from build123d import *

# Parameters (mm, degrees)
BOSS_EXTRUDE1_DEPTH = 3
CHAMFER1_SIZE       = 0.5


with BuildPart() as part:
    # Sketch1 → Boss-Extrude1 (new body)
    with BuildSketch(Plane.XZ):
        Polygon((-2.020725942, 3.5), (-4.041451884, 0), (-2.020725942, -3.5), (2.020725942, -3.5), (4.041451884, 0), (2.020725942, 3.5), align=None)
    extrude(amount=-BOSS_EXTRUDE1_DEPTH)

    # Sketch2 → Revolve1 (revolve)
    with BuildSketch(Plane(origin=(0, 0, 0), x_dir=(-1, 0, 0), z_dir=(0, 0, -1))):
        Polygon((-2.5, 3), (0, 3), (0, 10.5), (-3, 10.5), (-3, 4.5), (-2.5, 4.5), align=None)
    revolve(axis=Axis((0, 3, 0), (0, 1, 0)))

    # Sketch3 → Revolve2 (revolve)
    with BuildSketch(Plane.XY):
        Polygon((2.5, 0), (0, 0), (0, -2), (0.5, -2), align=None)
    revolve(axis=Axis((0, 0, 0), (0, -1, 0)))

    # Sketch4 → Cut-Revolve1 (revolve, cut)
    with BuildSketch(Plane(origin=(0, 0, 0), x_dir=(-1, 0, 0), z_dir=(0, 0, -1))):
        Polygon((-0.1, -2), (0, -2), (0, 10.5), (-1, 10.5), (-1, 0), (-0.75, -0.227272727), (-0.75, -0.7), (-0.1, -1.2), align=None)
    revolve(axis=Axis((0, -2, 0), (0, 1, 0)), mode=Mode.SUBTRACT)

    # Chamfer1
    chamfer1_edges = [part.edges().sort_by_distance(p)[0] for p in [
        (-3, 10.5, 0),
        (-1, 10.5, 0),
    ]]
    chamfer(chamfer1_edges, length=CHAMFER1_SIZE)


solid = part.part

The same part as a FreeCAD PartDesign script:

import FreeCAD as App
import Part
import Sketcher

V = App.Vector
Q = App.Units.Quantity


def edges_at(feature, points):
    """Names of the edges that pass closest to the given points."""
    edges = feature.Shape.Edges
    near = lambda p: min(range(len(edges)), key=lambda i: edges[i].distToShape(Part.Vertex(*p))[0])
    return sorted({f"Edge{near(p) + 1}" for p in points})


def add_polygon(sketch, points):
    """Adds a closed chain of lines whose ends are joined by coincident constraints."""
    first, n = sketch.GeometryCount, len(points)
    for a, b in zip(points, points[1:] + points[:1]):
        sketch.addGeometry(Part.LineSegment(App.Vector(*a, 0), App.Vector(*b, 0)), False)
    for i in range(n):
        sketch.addConstraint(Sketcher.Constraint("Coincident", first + i, 2, first + (i + 1) % n, 1))

doc = App.newDocument("Part")
body = doc.addObject("PartDesign::Body", "Body")

# Sketch on XZ plane
sketch1 = doc.addObject("Sketcher::SketchObject", "Sketch")
body.addObject(sketch1)
sketch1.AttachmentSupport = (doc.XZ_Plane, [""])
sketch1.MapMode = "FlatFace"
add_polygon(sketch1, [(-2, 3.5), (-4, 0), (-2, -3.5), (2, -3.5), (4, 0), (2, 3.5)])  # lines 0-5
sketch1.addConstraint([
    Sketcher.Constraint("Horizontal", 2),
    Sketcher.Constraint("Horizontal", 5),
    Sketcher.Constraint("Symmetric", 0, 2, 3, 2, -1, 1),
    Sketcher.Constraint("Symmetric", 1, 2, 4, 2, -1, 1),
    Sketcher.Constraint("PointOnObject", 0, 2, -1),
    Sketcher.Constraint("Parallel", 0, 3),
    Sketcher.Constraint("Vertical", 2, 2, 4, 2),
    Sketcher.Constraint("Angle", 0, Q("-120 deg")),
    Sketcher.Constraint("DistanceY", 2, 2, 4, 2, Q("7 mm")),
    Sketcher.Constraint("DistanceX", 2, 1, 2, 2, Q("4.041452 mm")),
])
pad1 = doc.addObject("PartDesign::Pad", "Pad")
body.addObject(pad1)
pad1.Profile = sketch1
pad1.Length = 3
pad1.Reversed = True

# Sketch on XY plane
sketch2 = doc.addObject("Sketcher::SketchObject", "Sketch001")
body.addObject(sketch2)
sketch2.AttachmentSupport = (doc.XY_Plane, [""])
sketch2.MapMode = "FlatFace"
add_polygon(sketch2, [(2.5, 3), (0, 3), (0, 10.5), (3, 10.5), (3, 4.5), (2.5, 4.5)])  # lines 0-5
sketch2.addConstraint([
    Sketcher.Constraint("Horizontal", 0),
    Sketcher.Constraint("Vertical", 1),
    Sketcher.Constraint("Horizontal", 2),
    Sketcher.Constraint("Vertical", 3),
    Sketcher.Constraint("Horizontal", 4),
    Sketcher.Constraint("Vertical", 5),
    Sketcher.Constraint("PointOnObject", 0, 2, -2),
    Sketcher.Constraint("DistanceX", 2, 1, 2, 2, Q("3 mm")),
    Sketcher.Constraint("DistanceY", 3, 2, 3, 1, Q("6 mm")),
    Sketcher.Constraint("DistanceX", 0, 2, 0, 1, Q("2.5 mm")),
    Sketcher.Constraint("DistanceY", 1, 1, 1, 2, Q("7.5 mm")),
    Sketcher.Constraint("DistanceY", -1, 1, 0, 2, Q("3 mm")),
])
revolution = doc.addObject("PartDesign::Revolution", "Revolution")
body.addObject(revolution)
revolution.Profile = sketch2
revolution.ReferenceAxis = (sketch2, ["V_Axis"])
revolution.Angle = 360

# Sketch on XY plane
sketch3 = doc.addObject("Sketcher::SketchObject", "Sketch002")
body.addObject(sketch3)
sketch3.AttachmentSupport = (doc.XY_Plane, [""])
sketch3.MapMode = "FlatFace"
add_polygon(sketch3, [(2.5, 0), (0, 0), (0, -2), (0.5, -2)])  # lines 0-3
sketch3.addConstraint([
    Sketcher.Constraint("Horizontal", 0),
    Sketcher.Constraint("Vertical", 1),
    Sketcher.Constraint("Horizontal", 2),
    Sketcher.Constraint("Coincident", 0, 2, -1, 1),
    Sketcher.Constraint("DistanceY", 1, 2, 1, 1, Q("2 mm")),
    Sketcher.Constraint("Angle", 3, Q("45 deg")),
    Sketcher.Constraint("DistanceX", 0, 2, 0, 1, Q("2.5 mm")),
])
revolution2 = doc.addObject("PartDesign::Revolution", "Revolution001")
body.addObject(revolution2)
revolution2.Profile = sketch3
revolution2.ReferenceAxis = (sketch3, ["V_Axis"])
revolution2.Angle = 360

# Sketch on XY plane
sketch4 = doc.addObject("Sketcher::SketchObject", "Sketch003")
body.addObject(sketch4)
sketch4.AttachmentSupport = (doc.XY_Plane, [""])
sketch4.MapMode = "FlatFace"
add_polygon(sketch4, [(0.1, -2), (0, -2), (0, 10.5), (1, 10.5), (1, 0), (0.75, -0.23), (0.75, -0.7), (0.1, -1.2)])  # lines 0-7
sketch4.addConstraint([
    Sketcher.Constraint("Horizontal", 0),
    Sketcher.Constraint("Vertical", 1),
    Sketcher.Constraint("Horizontal", 2),
    Sketcher.Constraint("Vertical", 3),
    Sketcher.Constraint("Vertical", 5),
    Sketcher.Constraint("Vertical", 7),
    Sketcher.Constraint("PointOnObject", 0, 2, -2),
    Sketcher.Constraint("PointOnObject", 3, 2, -1),
    Sketcher.Constraint("DistanceX", 2, 1, 2, 2, Q("1 mm")),
    Sketcher.Constraint("DistanceX", 0, 2, 0, 1, Q("0.1 mm")),
    Sketcher.Constraint("DistanceY", 1, 1, 1, 2, Q("12.5 mm")),
    Sketcher.Constraint("DistanceY", 3, 2, 3, 1, Q("10.5 mm")),
    Sketcher.Constraint("DistanceY", 7, 2, 7, 1, Q("0.8 mm")),
    Sketcher.Constraint("DistanceY", 5, 2, -1, 1, Q("0.7 mm")),
    Sketcher.Constraint("DistanceX", -1, 1, 4, 2, Q("0.75 mm")),
    Sketcher.Constraint("DistanceY", 5, 2, 5, 1, Q("0.472727 mm")),
])
groove = doc.addObject("PartDesign::Groove", "Groove")
body.addObject(groove)
groove.Profile = sketch4
groove.ReferenceAxis = (sketch4, ["V_Axis"])
groove.Angle = 360
doc.recompute()

chamfer = doc.addObject("PartDesign::Chamfer", "Chamfer")
body.addObject(chamfer)
chamfer.Base = (groove, edges_at(groove, [(-3, 10.5, 0), (-1, 10.5, 0)]))
chamfer.Size = 0.5

doc.recompute()
